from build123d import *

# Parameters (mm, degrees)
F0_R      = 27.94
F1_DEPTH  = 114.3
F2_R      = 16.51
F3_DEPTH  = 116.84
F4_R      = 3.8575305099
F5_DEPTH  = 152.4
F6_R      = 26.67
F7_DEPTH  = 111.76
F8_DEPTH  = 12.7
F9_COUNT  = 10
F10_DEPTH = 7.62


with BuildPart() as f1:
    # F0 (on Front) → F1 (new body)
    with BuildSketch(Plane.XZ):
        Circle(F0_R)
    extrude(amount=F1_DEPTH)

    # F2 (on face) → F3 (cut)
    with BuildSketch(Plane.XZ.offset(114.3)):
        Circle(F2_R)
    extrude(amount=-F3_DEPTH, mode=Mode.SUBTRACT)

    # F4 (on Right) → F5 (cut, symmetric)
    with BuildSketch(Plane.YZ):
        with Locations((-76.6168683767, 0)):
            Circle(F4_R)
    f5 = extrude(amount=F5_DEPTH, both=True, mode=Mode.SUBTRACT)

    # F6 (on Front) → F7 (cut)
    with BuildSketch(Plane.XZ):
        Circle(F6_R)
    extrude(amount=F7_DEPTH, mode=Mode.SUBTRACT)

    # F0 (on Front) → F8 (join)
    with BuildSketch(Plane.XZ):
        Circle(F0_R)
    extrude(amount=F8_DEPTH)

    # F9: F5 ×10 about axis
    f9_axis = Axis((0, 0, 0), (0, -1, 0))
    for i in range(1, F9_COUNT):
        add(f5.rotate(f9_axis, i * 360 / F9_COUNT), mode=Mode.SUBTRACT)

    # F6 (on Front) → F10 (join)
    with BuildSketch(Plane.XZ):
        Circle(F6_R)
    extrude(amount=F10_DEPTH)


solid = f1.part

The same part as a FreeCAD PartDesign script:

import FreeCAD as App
import Part
import Sketcher
from FreeCAD import Vector
Q = App.Units.Quantity

doc = App.newDocument("Part")
params = doc.addObject("Spreadsheet::Sheet", "Params")
for row, (alias, value) in enumerate([
    ("sketch1_diameter", "2.2 in"),
    ("pad1_length", "4.5 in"),
    ("sketch2_diameter", "1.3 in"),
    ("pocket1_length", "4.6 in"),
    ("pocket2_length", "12 in"),
    ("sketch4_diameter", "2.1 in"),
    ("pocket3_length", "4.4 in"),
    ("sketch5_diameter", "2.2 in"),
    ("pad2_length", "0.5 in"),
    ("sketch6_diameter", "2.1 in"),
    ("pad3_length", "0.3 in"),
], start=1):
    params.set(f"A{row}", alias)
    params.set(f"B{row}", "=" + value)
    params.setAlias(f"B{row}", alias)

body = doc.addObject("PartDesign::Body", "Body")

# Sketch on XZ plane
sketch1 = body.newObject("Sketcher::SketchObject", "Sketch")
sketch1.AttachmentSupport = (doc.getObject("XZ_Plane"), [""])
sketch1.MapMode = "FlatFace"
sketch1.addGeometry(Part.Circle(Vector(0, 0, 0), Vector(0, 0, 1), 28), False)
sketch1.addConstraint([
    Sketcher.Constraint("Coincident", 0, 3, -1, 1),
    Sketcher.Constraint("Diameter", 0, Q("2.2 in")),
])
sketch1.setExpression("Constraints[1]", "Params.sketch1_diameter")
pad1 = body.newObject("PartDesign::Pad", "Pad")
pad1.Profile = sketch1
pad1.setExpression("Length", "Params.pad1_length")

# Sketch on XZ plane
sketch2 = body.newObject("Sketcher::SketchObject", "Sketch001")
sketch2.AttachmentSupport = (doc.getObject("XZ_Plane"), [""])
sketch2.MapMode = "FlatFace"
sketch2.AttachmentOffset = App.Placement(Vector(0, 0, 4.5 * 25.4), App.Rotation())
sketch2.addGeometry(Part.Circle(Vector(0, 0, 0), Vector(0, 0, 1), 17), False)
sketch2.addConstraint([
    Sketcher.Constraint("Coincident", 0, 3, -1, 1),
    Sketcher.Constraint("Diameter", 0, Q("1.3 in")),
])
sketch2.setExpression("Constraints[1]", "Params.sketch2_diameter")
pocket1 = body.newObject("PartDesign::Pocket", "Pocket")
pocket1.Profile = sketch2
pocket1.setExpression("Length", "Params.pocket1_length")

# Sketch on YZ plane
sketch3 = body.newObject("Sketcher::SketchObject", "Sketch002")
sketch3.AttachmentSupport = (doc.getObject("YZ_Plane"), [""])
sketch3.MapMode = "FlatFace"
sketch3.addGeometry(Part.Circle(Vector(-76.6, 0, 0), Vector(0, 0, 1), 3.9), False)
sketch3.addConstraint([
    Sketcher.Constraint("PointOnObject", 0, 3, -1),
    Sketcher.Constraint("Diameter", 0, 7.715061),
    Sketcher.Constraint("DistanceX", 0, 3, -1, 1, 76.616868),
])
pocket2 = body.newObject("PartDesign::Pocket", "Pocket001")
pocket2.Profile = sketch3
pocket2.setExpression("Length", "Params.pocket2_length")
pocket2.Midplane = True

# Sketch on XZ plane
sketch4 = body.newObject("Sketcher::SketchObject", "Sketch003")
sketch4.AttachmentSupport = (doc.getObject("XZ_Plane"), [""])
sketch4.MapMode = "FlatFace"
sketch4.addGeometry(Part.Circle(Vector(0, 0, 0), Vector(0, 0, 1), 27), False)
sketch4.addConstraint([
    Sketcher.Constraint("Coincident", 0, 3, -1, 1),
    Sketcher.Constraint("Diameter", 0, Q("2.1 in")),
])
sketch4.setExpression("Constraints[1]", "Params.sketch4_diameter")
pocket3 = body.newObject("PartDesign::Pocket", "Pocket002")
pocket3.Profile = sketch4
pocket3.setExpression("Length", "Params.pocket3_length")
pocket3.Reversed = True

# Sketch on XZ plane
sketch5 = body.newObject("Sketcher::SketchObject", "Sketch004")
sketch5.AttachmentSupport = (doc.getObject("XZ_Plane"), [""])
sketch5.MapMode = "FlatFace"
sketch5.addGeometry(Part.Circle(Vector(0, 0, 0), Vector(0, 0, 1), 28), False)
sketch5.addConstraint([
    Sketcher.Constraint("Coincident", 0, 3, -1, 1),
    Sketcher.Constraint("Diameter", 0, Q("2.2 in")),
])
sketch5.setExpression("Constraints[1]", "Params.sketch5_diameter")
pad2 = body.newObject("PartDesign::Pad", "Pad001")
pad2.Profile = sketch5
pad2.setExpression("Length", "Params.pad2_length")
doc.recompute()

polarpattern = body.newObject("PartDesign::PolarPattern", "PolarPattern")
polarpattern.Originals = [pocket2]
polarpattern.Axis = (doc.getObject("Y_Axis"), [""])
polarpattern.Angle = 360
polarpattern.Occurrences = 10
body.Tip = polarpattern

# Sketch on XZ plane
sketch6 = body.newObject("Sketcher::SketchObject", "Sketch005")
sketch6.AttachmentSupport = (doc.getObject("XZ_Plane"), [""])
sketch6.MapMode = "FlatFace"
sketch6.addGeometry(Part.Circle(Vector(0, 0, 0), Vector(0, 0, 1), 27), False)
sketch6.addConstraint([
    Sketcher.Constraint("Coincident", 0, 3, -1, 1),
    Sketcher.Constraint("Diameter", 0, Q("2.1 in")),
])
sketch6.setExpression("Constraints[1]", "Params.sketch6_diameter")
pad3 = body.newObject("PartDesign::Pad", "Pad002")
pad3.Profile = sketch6
pad3.setExpression("Length", "Params.pad3_length")

doc.recompute()
